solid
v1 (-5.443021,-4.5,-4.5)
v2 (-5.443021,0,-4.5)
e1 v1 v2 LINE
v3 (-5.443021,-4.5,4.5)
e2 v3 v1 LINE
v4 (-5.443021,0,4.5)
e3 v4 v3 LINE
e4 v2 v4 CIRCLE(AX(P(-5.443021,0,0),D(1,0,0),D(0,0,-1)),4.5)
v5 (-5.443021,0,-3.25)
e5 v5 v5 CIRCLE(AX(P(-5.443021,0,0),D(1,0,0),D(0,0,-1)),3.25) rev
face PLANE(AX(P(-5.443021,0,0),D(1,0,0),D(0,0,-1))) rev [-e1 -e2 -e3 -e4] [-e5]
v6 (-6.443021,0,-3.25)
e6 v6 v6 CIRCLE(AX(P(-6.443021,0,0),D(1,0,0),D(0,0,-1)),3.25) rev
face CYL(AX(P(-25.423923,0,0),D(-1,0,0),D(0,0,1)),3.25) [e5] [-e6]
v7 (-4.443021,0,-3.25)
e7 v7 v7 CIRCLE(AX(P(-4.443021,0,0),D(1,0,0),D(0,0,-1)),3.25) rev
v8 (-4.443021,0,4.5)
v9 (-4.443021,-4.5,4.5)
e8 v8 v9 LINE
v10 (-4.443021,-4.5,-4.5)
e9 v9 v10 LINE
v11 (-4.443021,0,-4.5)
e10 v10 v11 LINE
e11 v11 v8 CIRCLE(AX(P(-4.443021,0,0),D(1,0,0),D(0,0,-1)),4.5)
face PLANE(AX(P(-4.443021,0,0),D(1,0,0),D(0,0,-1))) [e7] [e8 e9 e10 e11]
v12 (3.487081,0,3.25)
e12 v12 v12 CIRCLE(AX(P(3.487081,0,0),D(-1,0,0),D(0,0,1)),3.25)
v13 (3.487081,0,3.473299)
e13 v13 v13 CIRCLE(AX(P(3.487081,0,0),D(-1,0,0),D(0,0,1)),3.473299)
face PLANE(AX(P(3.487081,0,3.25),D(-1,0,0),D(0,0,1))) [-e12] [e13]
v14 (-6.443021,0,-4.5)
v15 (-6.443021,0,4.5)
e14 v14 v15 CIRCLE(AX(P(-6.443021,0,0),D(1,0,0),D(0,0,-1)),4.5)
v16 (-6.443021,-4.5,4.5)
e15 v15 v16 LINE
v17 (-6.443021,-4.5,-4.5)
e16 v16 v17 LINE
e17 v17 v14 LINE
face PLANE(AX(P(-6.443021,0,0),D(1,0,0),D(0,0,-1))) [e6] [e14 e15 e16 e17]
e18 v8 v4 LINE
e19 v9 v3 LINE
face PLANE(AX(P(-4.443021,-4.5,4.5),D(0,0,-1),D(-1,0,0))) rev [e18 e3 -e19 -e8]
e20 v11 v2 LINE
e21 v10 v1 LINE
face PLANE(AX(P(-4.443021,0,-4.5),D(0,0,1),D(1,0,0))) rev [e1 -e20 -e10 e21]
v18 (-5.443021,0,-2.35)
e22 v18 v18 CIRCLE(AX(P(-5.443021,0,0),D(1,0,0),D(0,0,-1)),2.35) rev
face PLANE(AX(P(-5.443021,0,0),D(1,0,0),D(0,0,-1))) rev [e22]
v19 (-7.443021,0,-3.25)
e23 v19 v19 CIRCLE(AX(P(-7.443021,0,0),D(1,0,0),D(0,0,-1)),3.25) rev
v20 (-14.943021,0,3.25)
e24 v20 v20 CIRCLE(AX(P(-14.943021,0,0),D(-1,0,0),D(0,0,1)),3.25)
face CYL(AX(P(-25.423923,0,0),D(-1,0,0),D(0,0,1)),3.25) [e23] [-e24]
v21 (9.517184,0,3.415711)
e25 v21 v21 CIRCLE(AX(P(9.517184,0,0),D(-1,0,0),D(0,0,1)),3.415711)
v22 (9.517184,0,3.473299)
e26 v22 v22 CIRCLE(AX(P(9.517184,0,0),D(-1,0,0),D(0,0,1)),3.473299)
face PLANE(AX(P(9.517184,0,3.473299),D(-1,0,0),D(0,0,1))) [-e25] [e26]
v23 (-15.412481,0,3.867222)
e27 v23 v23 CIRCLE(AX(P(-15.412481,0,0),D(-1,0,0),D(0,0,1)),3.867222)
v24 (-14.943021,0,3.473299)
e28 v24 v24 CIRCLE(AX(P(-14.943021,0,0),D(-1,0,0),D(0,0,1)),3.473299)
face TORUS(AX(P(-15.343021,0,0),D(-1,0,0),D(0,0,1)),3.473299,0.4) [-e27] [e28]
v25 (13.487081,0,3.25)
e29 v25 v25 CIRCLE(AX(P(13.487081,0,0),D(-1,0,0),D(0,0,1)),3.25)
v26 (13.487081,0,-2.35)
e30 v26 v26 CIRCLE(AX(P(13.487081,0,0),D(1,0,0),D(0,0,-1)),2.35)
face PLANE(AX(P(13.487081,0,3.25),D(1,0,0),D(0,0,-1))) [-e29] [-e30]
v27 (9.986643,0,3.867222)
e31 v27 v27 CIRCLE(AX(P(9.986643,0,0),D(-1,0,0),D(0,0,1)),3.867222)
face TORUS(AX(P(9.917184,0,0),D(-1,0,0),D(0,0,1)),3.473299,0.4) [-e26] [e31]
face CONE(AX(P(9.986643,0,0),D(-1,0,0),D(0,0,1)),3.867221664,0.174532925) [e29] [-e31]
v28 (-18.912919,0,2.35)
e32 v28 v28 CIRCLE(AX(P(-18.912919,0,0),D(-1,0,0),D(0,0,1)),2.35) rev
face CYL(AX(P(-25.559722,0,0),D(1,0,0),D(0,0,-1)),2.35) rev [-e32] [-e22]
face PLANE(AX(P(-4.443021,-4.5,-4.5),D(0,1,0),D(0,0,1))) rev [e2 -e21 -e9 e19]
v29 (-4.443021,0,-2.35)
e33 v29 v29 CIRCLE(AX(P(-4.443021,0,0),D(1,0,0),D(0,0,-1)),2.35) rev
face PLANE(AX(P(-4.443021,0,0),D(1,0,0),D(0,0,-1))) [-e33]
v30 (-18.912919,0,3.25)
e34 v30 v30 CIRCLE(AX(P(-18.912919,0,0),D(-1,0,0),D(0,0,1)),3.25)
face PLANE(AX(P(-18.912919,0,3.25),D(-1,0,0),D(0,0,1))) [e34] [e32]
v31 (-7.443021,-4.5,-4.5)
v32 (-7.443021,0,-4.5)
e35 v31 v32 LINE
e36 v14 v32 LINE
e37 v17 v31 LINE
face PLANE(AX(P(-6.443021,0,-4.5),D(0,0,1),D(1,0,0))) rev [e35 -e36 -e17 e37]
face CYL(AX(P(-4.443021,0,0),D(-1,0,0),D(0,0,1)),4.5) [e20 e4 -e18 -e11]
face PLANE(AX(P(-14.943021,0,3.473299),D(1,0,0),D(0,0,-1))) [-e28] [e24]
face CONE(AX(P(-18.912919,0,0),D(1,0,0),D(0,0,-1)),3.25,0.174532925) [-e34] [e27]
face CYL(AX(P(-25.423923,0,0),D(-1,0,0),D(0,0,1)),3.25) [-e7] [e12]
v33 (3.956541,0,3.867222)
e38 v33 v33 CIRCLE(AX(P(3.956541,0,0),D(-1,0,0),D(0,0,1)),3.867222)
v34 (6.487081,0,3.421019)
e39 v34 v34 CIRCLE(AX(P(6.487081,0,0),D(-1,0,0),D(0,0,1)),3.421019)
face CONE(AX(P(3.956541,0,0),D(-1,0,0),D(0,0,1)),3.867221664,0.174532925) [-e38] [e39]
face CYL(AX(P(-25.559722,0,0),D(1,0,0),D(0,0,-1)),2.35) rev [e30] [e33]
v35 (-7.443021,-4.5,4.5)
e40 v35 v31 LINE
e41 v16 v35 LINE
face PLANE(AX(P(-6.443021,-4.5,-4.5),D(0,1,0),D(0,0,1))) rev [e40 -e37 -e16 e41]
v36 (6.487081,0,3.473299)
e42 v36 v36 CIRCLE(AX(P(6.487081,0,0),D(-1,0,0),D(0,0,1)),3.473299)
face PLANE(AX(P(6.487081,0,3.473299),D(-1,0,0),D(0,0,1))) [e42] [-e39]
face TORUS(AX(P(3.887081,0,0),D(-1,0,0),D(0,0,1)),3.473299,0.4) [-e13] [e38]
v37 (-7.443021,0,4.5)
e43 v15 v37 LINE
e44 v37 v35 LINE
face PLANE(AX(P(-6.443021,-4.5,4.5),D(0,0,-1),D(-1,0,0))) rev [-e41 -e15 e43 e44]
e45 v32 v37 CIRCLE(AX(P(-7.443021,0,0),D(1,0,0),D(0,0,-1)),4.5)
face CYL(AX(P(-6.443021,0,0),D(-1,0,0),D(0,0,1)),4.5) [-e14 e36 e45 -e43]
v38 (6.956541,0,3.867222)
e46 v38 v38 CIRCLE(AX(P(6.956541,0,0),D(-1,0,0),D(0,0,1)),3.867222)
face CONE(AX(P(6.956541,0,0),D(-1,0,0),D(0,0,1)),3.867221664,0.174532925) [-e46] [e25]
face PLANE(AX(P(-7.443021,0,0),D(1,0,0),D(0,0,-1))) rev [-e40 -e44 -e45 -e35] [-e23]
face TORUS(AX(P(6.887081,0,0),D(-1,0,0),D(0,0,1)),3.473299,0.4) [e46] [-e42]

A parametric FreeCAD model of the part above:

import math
import FreeCAD as App
import Part
import Sketcher

V = App.Vector
Q = App.Units.Quantity

doc = App.newDocument("Part")
body = doc.addObject("PartDesign::Body", "Body")

sketch1 = body.newObject("Sketcher::SketchObject", "Sketch")
sketch1.AttachmentSupport = (doc.getObject("XZ_Plane"), [""])
sketch1.MapMode = "FlatFace"
sketch1.addGeometry([
    Part.LineSegment(V(13.49, 0, 0), V(-18.91, 0, 0)),
    Part.LineSegment(V(-18.91, 0, 0), V(-18.91, 3.25, 0)),
    Part.LineSegment(V(-18.91, 3.25, 0), V(-15.41, 3.87, 0)),
    Part.ArcOfCircle(Part.Circle(V(-15.34, 3.47, 0), V(0, 0, 1), 0.4), math.radians(0), math.radians(100)),
    Part.LineSegment(V(-14.94, 3.47, 0), V(-14.94, 3.25, 0)),
    Part.LineSegment(V(-14.94, 3.25, 0), V(3.49, 3.25, 0)),
    Part.LineSegment(V(3.49, 3.25, 0), V(3.49, 3.47, 0)),
    Part.ArcOfCircle(Part.Circle(V(3.89, 3.47, 0), V(0, 0, 1), 0.4), math.radians(80), math.radians(180)),
    Part.LineSegment(V(3.96, 3.87, 0), V(6.49, 3.42, 0)),
    Part.LineSegment(V(6.49, 3.42, 0), V(6.49, 3.47, 0)),
    Part.ArcOfCircle(Part.Circle(V(6.89, 3.47, 0), V(0, 0, 1), 0.4), math.radians(80), math.radians(180)),
    Part.LineSegment(V(6.96, 3.87, 0), V(9.52, 3.42, 0)),
    Part.LineSegment(V(9.52, 3.42, 0), V(9.52, 3.47, 0)),
    Part.ArcOfCircle(Part.Circle(V(9.92, 3.47, 0), V(0, 0, 1), 0.4), math.radians(80), math.radians(180)),
    Part.LineSegment(V(9.99, 3.87, 0), V(13.49, 3.25, 0)),
    Part.LineSegment(V(13.49, 3.25, 0), V(13.49, 0, 0)),
], False)
sketch1.addConstraint([
    Sketcher.Constraint("Coincident", 0, 2, 1, 1),
    Sketcher.Constraint("Coincident", 1, 2, 2, 1),
    Sketcher.Constraint("Tangent", 2, 2, 3, 2),
    Sketcher.Constraint("Tangent", 3, 1, 4, 1),
    Sketcher.Constraint("Coincident", 4, 2, 5, 1),
    Sketcher.Constraint("Coincident", 5, 2, 6, 1),
    Sketcher.Constraint("Tangent", 6, 2, 7, 2),
    Sketcher.Constraint("Tangent", 7, 1, 8, 1),
    Sketcher.Constraint("Coincident", 8, 2, 9, 1),
    Sketcher.Constraint("Tangent", 9, 2, 10, 2),
    Sketcher.Constraint("Tangent", 10, 1, 11, 1),
    Sketcher.Constraint("Coincident", 11, 2, 12, 1),
    Sketcher.Constraint("Tangent", 12, 2, 13, 2),
    Sketcher.Constraint("Tangent", 13, 1, 14, 1),
    Sketcher.Constraint("Coincident", 14, 2, 15, 1),
    Sketcher.Constraint("Coincident", 15, 2, 0, 1),
    Sketcher.Constraint("Horizontal", 0),
    Sketcher.Constraint("Vertical", 1),
    Sketcher.Constraint("Vertical", 4),
    Sketcher.Constraint("Horizontal", 5),
    Sketcher.Constraint("Vertical", 6),
    Sketcher.Constraint("Vertical", 9),
    Sketcher.Constraint("Vertical", 12),
    Sketcher.Constraint("Vertical", 15),
    Sketcher.Constraint("Equal", 3, 7),
    Sketcher.Constraint("Equal", 7, 10),
    Sketcher.Constraint("Equal", 10, 13),
    Sketcher.Constraint("PointOnObject", 0, 2, -1),
    Sketcher.Constraint("Parallel", 8, 11),
    Sketcher.Constraint("Parallel", 11, 14),
    Sketcher.Constraint("Horizontal", 3, 3, 7, 3),
    Sketcher.Constraint("Horizontal", 7, 3, 10, 3),
    Sketcher.Constraint("Horizontal", 10, 3, 13, 3),
    Sketcher.Constraint("Horizontal", 1, 2, 4, 2),
    Sketcher.Constraint("Horizontal", 2, 2, 7, 1),
    Sketcher.Constraint("Horizontal", 5, 2, 14, 2),
    Sketcher.Constraint("Radius", 3, 0.4),
    Sketcher.Constraint("Angle", 2, Q("10 deg")),
    Sketcher.Constraint("DistanceX", 0, 2, 0, 1, 32.4),
    Sketcher.Constraint("DistanceX", 7, 3, 10, 3, 3.0),
    Sketcher.Constraint("DistanceY", 1, 1, 1, 2, 3.25),
    Sketcher.Constraint("DistanceX", 0, 2, 7, 3, 22.8),
    Sketcher.Constraint("DistanceY", 4, 2, 4, 1, 0.223299),
    Sketcher.Constraint("DistanceX", 3, 3, -1, 1, 15.343021),
])
revolution = body.newObject("PartDesign::Revolution", "Revolution")
revolution.Profile = sketch1
revolution.ReferenceAxis = (sketch1, ["H_Axis"])
revolution.Angle = 360

sketch2 = body.newObject("Sketcher::SketchObject", "Sketch001")
sketch2.AttachmentSupport = (doc.getObject("YZ_Plane"), [""])
sketch2.MapMode = "FlatFace"
sketch2.AttachmentOffset = App.Placement(V(0, 0, -7.443021), App.Rotation())
sketch2.addGeometry([
    Part.LineSegment(V(-4.5, 4.5, 0), V(-4.5, -4.5, 0)),
    Part.LineSegment(V(-4.5, -4.5, 0), V(0, -4.5, 0)),
    Part.ArcOfCircle(Part.Circle(V(0, 0, 0), V(0, 0, 1), 4.5), math.radians(-90), math.radians(90)),
    Part.LineSegment(V(0, 4.5, 0), V(-4.5, 4.5, 0)),
], False)
sketch2.addConstraint([
    Sketcher.Constraint("Coincident", 0, 2, 1, 1),
    Sketcher.Constraint("Tangent", 1, 2, 2, 1),
    Sketcher.Constraint("Tangent", 2, 2, 3, 1),
    Sketcher.Constraint("Coincident", 3, 2, 0, 1),
    Sketcher.Constraint("Vertical", 0),
    Sketcher.Constraint("Horizontal", 1),
    Sketcher.Constraint("Horizontal", 3),
    Sketcher.Constraint("Coincident", 2, 3, -1, 1),
    Sketcher.Constraint("Radius", 2, 4.5),
    Sketcher.Constraint("DistanceX", 1, 1, 1, 2, 4.5),
])
pad1 = body.newObject("PartDesign::Pad", "Pad")
pad1.Profile = sketch2
pad1.Length = 1

sketch3 = body.newObject("Sketcher::SketchObject", "Sketch002")
sketch3.AttachmentSupport = (doc.getObject("YZ_Plane"), [""])
sketch3.MapMode = "FlatFace"
sketch3.AttachmentOffset = App.Placement(V(0, 0, 13.487081), App.Rotation())
sketch3.addGeometry(Part.Circle(V(0, 0, 0), V(0, 0, 1), 2.4), False)
sketch3.addConstraint([
    Sketcher.Constraint("Coincident", 0, 3, -1, 1),
    Sketcher.Constraint("Diameter", 0, 4.7),
])
pocket1 = body.newObject("PartDesign::Pocket", "Pocket")
pocket1.Profile = sketch3
pocket1.Length = 32.4
doc.recompute()

linearpattern = body.newObject("PartDesign::LinearPattern", "LinearPattern")
linearpattern.Originals = [pad1]
linearpattern.Direction = (doc.getObject("X_Axis"), [""])
linearpattern.Mode = "offset"
linearpattern.Offset = 2
linearpattern.Occurrences = 2
body.Tip = linearpattern

doc.recompute()
